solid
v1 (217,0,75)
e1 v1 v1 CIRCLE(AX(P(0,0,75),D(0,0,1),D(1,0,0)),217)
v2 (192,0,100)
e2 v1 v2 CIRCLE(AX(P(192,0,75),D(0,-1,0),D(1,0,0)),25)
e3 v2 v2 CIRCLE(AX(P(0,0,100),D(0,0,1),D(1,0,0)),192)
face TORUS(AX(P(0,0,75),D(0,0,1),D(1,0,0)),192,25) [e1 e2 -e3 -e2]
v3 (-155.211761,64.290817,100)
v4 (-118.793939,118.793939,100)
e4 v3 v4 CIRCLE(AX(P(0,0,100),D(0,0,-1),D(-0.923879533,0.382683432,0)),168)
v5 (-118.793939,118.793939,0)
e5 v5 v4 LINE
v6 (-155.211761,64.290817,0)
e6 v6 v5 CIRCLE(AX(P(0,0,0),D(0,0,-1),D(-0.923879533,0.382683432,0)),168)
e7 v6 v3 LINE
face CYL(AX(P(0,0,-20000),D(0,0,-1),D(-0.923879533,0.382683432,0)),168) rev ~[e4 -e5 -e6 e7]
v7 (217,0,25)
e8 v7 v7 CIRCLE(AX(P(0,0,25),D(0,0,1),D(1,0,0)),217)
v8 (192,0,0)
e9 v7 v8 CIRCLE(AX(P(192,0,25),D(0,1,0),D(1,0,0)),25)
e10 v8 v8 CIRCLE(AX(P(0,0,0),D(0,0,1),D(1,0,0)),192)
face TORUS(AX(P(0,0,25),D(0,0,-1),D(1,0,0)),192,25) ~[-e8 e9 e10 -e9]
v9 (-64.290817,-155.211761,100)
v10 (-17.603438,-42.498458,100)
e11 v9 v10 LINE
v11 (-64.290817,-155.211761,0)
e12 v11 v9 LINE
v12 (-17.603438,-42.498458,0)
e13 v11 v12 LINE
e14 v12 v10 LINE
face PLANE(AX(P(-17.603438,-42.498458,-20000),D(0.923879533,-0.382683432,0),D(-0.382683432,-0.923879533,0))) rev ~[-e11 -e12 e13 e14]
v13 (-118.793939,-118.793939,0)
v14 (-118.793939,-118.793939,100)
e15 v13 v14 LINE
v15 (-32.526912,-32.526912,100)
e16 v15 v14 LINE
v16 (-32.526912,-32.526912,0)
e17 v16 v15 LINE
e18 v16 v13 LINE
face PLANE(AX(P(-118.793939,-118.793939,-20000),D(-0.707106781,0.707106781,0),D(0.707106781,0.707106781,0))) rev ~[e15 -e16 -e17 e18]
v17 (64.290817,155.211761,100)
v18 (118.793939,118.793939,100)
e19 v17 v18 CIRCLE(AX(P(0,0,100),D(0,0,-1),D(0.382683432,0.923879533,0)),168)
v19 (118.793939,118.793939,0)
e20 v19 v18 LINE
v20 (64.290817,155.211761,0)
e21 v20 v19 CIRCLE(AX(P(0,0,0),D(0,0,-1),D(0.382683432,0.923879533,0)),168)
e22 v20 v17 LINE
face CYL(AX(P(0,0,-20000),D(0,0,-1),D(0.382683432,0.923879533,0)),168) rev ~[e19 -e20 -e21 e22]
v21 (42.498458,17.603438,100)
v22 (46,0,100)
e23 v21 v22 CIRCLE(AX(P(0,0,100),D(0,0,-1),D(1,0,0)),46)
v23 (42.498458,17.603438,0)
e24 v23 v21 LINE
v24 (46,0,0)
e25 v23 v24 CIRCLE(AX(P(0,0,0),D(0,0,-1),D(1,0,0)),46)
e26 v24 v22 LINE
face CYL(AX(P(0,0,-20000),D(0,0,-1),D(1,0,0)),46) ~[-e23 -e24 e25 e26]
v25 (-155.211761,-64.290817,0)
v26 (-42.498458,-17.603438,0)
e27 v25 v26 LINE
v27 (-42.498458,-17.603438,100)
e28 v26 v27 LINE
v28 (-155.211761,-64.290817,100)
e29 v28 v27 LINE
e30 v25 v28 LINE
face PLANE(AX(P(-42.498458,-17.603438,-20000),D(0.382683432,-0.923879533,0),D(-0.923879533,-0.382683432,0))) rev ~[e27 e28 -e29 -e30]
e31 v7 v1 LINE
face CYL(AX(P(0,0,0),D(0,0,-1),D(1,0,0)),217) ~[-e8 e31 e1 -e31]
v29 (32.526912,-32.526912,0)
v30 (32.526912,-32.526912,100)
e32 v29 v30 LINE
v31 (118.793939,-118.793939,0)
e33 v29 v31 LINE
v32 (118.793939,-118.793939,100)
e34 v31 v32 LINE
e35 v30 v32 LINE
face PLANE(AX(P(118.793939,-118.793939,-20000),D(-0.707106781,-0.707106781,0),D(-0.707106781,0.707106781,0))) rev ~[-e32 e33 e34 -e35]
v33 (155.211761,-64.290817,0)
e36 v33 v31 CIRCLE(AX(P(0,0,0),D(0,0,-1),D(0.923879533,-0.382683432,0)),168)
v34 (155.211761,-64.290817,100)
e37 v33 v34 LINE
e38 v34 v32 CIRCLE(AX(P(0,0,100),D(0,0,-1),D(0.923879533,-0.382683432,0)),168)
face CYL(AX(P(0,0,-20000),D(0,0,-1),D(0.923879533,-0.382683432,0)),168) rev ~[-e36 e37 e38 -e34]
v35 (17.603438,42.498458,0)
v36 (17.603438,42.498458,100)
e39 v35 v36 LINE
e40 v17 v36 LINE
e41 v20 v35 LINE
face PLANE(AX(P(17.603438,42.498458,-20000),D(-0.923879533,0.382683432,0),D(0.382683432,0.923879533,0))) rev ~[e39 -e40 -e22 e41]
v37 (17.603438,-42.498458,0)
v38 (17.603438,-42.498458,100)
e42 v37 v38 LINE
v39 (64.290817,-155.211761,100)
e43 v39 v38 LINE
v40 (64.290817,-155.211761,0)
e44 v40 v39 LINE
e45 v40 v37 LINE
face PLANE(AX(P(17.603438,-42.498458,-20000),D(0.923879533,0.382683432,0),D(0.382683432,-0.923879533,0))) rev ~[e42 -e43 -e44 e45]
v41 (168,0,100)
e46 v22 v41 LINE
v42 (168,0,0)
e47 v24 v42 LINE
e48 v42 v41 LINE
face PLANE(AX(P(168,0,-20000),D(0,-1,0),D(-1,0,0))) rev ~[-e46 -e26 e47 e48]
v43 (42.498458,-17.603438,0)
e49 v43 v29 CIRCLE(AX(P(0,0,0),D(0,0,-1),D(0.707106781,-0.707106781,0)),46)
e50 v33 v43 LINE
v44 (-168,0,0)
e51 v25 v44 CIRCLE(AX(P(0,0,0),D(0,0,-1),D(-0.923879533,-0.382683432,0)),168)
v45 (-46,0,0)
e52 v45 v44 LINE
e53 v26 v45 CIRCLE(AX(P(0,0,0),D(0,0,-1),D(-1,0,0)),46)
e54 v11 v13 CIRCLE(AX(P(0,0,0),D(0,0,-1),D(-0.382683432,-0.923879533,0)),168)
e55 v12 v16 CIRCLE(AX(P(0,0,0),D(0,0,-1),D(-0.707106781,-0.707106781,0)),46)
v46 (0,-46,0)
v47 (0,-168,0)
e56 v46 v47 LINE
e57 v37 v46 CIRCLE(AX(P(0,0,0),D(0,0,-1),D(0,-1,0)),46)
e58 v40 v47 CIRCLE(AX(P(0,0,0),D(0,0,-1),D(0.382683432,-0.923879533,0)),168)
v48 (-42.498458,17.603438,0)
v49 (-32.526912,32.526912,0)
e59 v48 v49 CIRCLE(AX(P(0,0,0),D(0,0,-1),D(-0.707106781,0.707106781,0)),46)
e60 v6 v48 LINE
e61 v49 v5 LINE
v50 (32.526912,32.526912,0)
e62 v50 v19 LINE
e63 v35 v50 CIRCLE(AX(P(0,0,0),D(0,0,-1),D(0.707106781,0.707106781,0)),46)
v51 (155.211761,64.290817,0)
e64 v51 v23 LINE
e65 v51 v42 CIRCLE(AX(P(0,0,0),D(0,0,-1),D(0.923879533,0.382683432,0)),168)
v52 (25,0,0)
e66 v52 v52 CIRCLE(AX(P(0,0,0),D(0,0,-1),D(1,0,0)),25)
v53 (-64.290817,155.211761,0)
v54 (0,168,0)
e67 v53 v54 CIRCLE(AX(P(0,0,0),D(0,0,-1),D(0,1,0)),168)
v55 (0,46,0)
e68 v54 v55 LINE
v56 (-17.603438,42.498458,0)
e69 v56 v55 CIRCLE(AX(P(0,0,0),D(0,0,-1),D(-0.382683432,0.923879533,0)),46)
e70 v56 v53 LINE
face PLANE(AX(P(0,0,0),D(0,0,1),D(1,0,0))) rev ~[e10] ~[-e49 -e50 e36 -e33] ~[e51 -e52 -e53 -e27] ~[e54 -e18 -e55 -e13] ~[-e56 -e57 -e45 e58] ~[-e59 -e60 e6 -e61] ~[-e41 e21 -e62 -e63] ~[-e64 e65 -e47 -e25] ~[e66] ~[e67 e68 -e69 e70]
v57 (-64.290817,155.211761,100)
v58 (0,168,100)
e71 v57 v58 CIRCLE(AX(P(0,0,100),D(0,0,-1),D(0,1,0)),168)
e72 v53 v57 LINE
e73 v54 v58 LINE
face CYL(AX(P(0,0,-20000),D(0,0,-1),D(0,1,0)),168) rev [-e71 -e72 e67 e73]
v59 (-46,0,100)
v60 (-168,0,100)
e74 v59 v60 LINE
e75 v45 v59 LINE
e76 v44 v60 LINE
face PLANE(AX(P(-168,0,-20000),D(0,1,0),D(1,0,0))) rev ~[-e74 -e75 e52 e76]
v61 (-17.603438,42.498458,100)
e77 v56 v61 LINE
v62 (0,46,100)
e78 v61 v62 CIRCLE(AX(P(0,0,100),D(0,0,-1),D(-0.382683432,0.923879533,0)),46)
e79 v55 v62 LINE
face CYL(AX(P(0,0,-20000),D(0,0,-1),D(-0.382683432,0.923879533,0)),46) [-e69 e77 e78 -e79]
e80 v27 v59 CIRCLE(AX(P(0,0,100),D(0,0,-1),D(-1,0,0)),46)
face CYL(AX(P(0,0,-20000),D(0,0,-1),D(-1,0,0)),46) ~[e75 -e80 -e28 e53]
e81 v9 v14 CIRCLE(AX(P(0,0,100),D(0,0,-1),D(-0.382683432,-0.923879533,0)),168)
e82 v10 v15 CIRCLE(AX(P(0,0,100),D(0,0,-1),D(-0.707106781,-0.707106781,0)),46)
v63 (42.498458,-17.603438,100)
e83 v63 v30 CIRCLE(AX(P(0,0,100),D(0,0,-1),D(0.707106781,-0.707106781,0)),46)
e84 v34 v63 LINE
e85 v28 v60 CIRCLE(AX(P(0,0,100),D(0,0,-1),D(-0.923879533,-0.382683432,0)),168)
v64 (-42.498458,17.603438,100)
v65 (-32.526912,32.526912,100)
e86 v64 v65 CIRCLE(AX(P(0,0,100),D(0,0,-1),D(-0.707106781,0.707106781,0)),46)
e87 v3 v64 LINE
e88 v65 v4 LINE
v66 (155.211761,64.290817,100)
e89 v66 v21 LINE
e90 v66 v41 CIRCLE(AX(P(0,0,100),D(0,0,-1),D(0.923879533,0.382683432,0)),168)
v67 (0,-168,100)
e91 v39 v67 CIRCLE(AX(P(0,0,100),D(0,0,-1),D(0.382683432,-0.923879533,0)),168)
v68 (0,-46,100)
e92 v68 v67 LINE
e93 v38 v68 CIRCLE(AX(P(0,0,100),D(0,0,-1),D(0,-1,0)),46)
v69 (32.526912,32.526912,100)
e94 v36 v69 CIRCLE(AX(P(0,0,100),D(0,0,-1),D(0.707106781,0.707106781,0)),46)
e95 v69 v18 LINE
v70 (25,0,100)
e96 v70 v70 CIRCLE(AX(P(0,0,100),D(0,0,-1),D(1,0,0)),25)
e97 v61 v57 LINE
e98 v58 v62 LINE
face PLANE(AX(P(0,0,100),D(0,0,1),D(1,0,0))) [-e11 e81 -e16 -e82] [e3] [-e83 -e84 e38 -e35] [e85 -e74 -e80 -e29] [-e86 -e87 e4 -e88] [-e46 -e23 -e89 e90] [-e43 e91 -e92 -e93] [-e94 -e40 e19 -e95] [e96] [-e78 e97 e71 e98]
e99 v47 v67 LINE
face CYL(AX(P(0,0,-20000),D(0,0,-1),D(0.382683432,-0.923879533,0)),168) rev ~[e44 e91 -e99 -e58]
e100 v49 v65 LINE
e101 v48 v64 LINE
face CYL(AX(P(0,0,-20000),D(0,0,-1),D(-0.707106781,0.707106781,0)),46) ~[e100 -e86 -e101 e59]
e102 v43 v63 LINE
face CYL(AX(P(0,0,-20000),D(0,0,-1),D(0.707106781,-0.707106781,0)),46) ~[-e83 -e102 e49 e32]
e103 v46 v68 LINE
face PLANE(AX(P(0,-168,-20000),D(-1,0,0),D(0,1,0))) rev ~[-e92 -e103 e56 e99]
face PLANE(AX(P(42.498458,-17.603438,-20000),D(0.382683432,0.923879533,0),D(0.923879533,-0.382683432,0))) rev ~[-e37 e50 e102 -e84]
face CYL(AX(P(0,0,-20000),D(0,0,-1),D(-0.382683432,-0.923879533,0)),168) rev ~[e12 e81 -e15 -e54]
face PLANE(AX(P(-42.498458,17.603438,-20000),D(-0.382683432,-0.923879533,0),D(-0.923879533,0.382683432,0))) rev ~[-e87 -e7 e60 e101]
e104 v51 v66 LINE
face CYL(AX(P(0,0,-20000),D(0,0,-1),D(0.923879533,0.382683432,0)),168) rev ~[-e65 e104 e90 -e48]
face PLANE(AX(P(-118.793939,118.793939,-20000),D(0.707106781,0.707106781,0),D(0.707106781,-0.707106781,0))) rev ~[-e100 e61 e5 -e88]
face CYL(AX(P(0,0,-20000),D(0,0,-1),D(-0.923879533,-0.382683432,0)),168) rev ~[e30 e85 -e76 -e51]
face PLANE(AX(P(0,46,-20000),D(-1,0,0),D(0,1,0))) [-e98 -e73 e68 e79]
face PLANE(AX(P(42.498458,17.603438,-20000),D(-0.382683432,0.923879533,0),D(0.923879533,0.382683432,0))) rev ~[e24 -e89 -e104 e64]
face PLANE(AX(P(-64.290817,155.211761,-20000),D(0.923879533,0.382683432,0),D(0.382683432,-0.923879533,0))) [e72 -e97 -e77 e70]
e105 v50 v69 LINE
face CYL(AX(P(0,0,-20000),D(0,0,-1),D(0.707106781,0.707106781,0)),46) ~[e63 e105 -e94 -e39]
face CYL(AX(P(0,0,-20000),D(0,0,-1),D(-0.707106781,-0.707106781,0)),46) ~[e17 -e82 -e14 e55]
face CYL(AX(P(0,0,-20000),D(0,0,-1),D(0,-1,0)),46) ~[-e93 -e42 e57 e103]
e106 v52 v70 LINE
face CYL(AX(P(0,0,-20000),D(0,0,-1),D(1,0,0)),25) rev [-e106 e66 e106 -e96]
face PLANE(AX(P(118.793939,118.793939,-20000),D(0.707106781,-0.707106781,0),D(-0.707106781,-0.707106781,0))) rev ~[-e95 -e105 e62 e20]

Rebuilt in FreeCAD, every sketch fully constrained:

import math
import FreeCAD as App
import Part
import Sketcher
from FreeCAD import Vector
Q = App.Units.Quantity


def edges_at(feature, points):
    """Names of the edges that pass closest to the given points."""
    edges = feature.Shape.Edges
    near = lambda p: min(range(len(edges)), key=lambda i: edges[i].distToShape(Part.Vertex(*p))[0])
    return sorted({f"Edge{near(p) + 1}" for p in points})

doc = App.newDocument("Part")
body = doc.addObject("PartDesign::Body", "Body")

# Sketch on XY plane
sketch1 = body.newObject("Sketcher::SketchObject", "Sketch")
sketch1.AttachmentSupport = (doc.getObject("XY_Plane"), [""])
sketch1.MapMode = "FlatFace"
sketch1.addGeometry(Part.Circle(Vector(0, 0, 0), Vector(0, 0, 1), 217), False)
sketch1.addConstraint(Sketcher.Constraint("Coincident", 0, 3, -1, 1))
sketch1.addConstraint(Sketcher.Constraint("Diameter", 0, 434.0))
pad1 = body.newObject("PartDesign::Pad", "Pad")
pad1.Profile = sketch1
pad1.Length = 100
doc.recompute()

fillet = body.newObject("PartDesign::Fillet", "Fillet")
fillet.Base = (pad1, edges_at(pad1, [(-217, 0, 100)]))
fillet.Radius = 25
doc.recompute()

fillet2 = body.newObject("PartDesign::Fillet", "Fillet001")
fillet2.Base = (fillet, edges_at(fillet, [(-217, 0, 0)]))
fillet2.Radius = 25

# Sketch on XY plane
sketch2 = body.newObject("Sketcher::SketchObject", "Sketch001")
sketch2.AttachmentSupport = (doc.getObject("XY_Plane"), [""])
sketch2.MapMode = "FlatFace"
sketch2.addGeometry(Part.ArcOfCircle(Part.Circle(Vector(0, 0, 0), Vector(0, 0, 1), 46), math.radians(180), math.radians(203)), False)
sketch2.addGeometry(Part.LineSegment(Vector(-46, 0, 0), Vector(-168, 0, 0)), False)
sketch2.addGeometry(Part.ArcOfCircle(Part.Circle(Vector(0, 0, 0), Vector(0, 0, 1), 168), math.radians(180), math.radians(203)), False)
sketch2.addGeometry(Part.LineSegment(Vector(-155, -64, 0), Vector(-42, -18, 0)), False)
sketch2.addGeometry(Part.ArcOfCircle(Part.Circle(Vector(0, 0, 0), Vector(0, 0, 1), 46), math.radians(-90), math.radians(-67)), False)
sketch2.addGeometry(Part.LineSegment(Vector(0, -46, 0), Vector(0, -168, 0)), False)
sketch2.addGeometry(Part.ArcOfCircle(Part.Circle(Vector(0, 0, 0), Vector(0, 0, 1), 168), math.radians(-90), math.radians(-67)), False)
sketch2.addGeometry(Part.LineSegment(Vector(64, -155, 0), Vector(18, -42, 0)), False)
sketch2.addGeometry(Part.ArcOfCircle(Part.Circle(Vector(0, 0, 0), Vector(0, 0, 1), 46), math.radians(-45), math.radians(-23)), False)
sketch2.addGeometry(Part.LineSegment(Vector(33, -33, 0), Vector(119, -119, 0)), False)
sketch2.addGeometry(Part.ArcOfCircle(Part.Circle(Vector(0, 0, 0), Vector(0, 0, 1), 168), math.radians(-45), math.radians(-22)), False)
sketch2.addGeometry(Part.LineSegment(Vector(155, -64, 0), Vector(42, -18, 0)), False)
sketch2.addGeometry(Part.ArcOfCircle(Part.Circle(Vector(0, 0, 0), Vector(0, 0, 1), 46), math.radians(0), math.radians(23)), False)
sketch2.addGeometry(Part.LineSegment(Vector(46, 0, 0), Vector(168, 0, 0)), False)
sketch2.addGeometry(Part.ArcOfCircle(Part.Circle(Vector(0, 0, 0), Vector(0, 0, 1), 168), math.radians(0), math.radians(23)), False)
sketch2.addGeometry(Part.LineSegment(Vector(155, 64, 0), Vector(42, 18, 0)), False)
sketch2.addGeometry(Part.ArcOfCircle(Part.Circle(Vector(0, 0, 0), Vector(0, 0, 1), 46), math.radians(45), math.radians(67)), False)
sketch2.addGeometry(Part.LineSegment(Vector(33, 33, 0), Vector(119, 119, 0)), False)
sketch2.addGeometry(Part.ArcOfCircle(Part.Circle(Vector(0, 0, 0), Vector(0, 0, 1), 168), math.radians(45), math.radians(68)), False)
sketch2.addGeometry(Part.LineSegment(Vector(64, 155, 0), Vector(18, 42, 0)), False)
sketch2.addGeometry(Part.LineSegment(Vector(0, 46, 0), Vector(0, 168, 0)), False)
sketch2.addGeometry(Part.ArcOfCircle(Part.Circle(Vector(0, 0, 0), Vector(0, 0, 1), 168), math.radians(90), math.radians(113)), False)
sketch2.addGeometry(Part.LineSegment(Vector(-64, 155, 0), Vector(-18, 42, 0)), False)
sketch2.addGeometry(Part.ArcOfCircle(Part.Circle(Vector(0, 0, 0), Vector(0, 0, 1), 46), math.radians(90), math.radians(113)), False)
sketch2.addGeometry(Part.LineSegment(Vector(-155, 64, 0), Vector(-42, 18, 0)), False)
sketch2.addGeometry(Part.ArcOfCircle(Part.Circle(Vector(0, 0, 0), Vector(0, 0, 1), 46), math.radians(135), math.radians(157)), False)
sketch2.addGeometry(Part.LineSegment(Vector(-33, 33, 0), Vector(-119, 119, 0)), False)
sketch2.addGeometry(Part.ArcOfCircle(Part.Circle(Vector(0, 0, 0), Vector(0, 0, 1), 168), math.radians(135), math.radians(158)), False)
sketch2.addGeometry(Part.LineSegment(Vector(-64, -155, 0), Vector(-18, -42, 0)), False)
sketch2.addGeometry(Part.ArcOfCircle(Part.Circle(Vector(0, 0, 0), Vector(0, 0, 1), 46), math.radians(-135), math.radians(-113)), False)
sketch2.addGeometry(Part.LineSegment(Vector(-33, -33, 0), Vector(-119, -119, 0)), False)
sketch2.addGeometry(Part.ArcOfCircle(Part.Circle(Vector(0, 0, 0), Vector(0, 0, 1), 168), math.radians(-135), math.radians(-112)), False)
sketch2.addConstraint(Sketcher.Constraint("Coincident", 0, 1, 1, 1))
sketch2.addConstraint(Sketcher.Constraint("Coincident", 1, 2, 2, 1))
sketch2.addConstraint(Sketcher.Constraint("Coincident", 2, 2, 3, 1))
sketch2.addConstraint(Sketcher.Constraint("Coincident", 3, 2, 0, 2))
sketch2.addConstraint(Sketcher.Constraint("Coincident", 4, 1, 5, 1))
sketch2.addConstraint(Sketcher.Constraint("Coincident", 5, 2, 6, 1))
sketch2.addConstraint(Sketcher.Constraint("Coincident", 6, 2, 7, 1))
sketch2.addConstraint(Sketcher.Constraint("Coincident", 7, 2, 4, 2))
sketch2.addConstraint(Sketcher.Constraint("Coincident", 8, 1, 9, 1))
sketch2.addConstraint(Sketcher.Constraint("Coincident", 9, 2, 10, 1))
sketch2.addConstraint(Sketcher.Constraint("Coincident", 10, 2, 11, 1))
sketch2.addConstraint(Sketcher.Constraint("Coincident", 11, 2, 8, 2))
sketch2.addConstraint(Sketcher.Constraint("Coincident", 12, 1, 13, 1))
sketch2.addConstraint(Sketcher.Constraint("Coincident", 13, 2, 14, 1))
sketch2.addConstraint(Sketcher.Constraint("Coincident", 14, 2, 15, 1))
sketch2.addConstraint(Sketcher.Constraint("Coincident", 15, 2, 12, 2))
sketch2.addConstraint(Sketcher.Constraint("Coincident", 16, 1, 17, 1))
sketch2.addConstraint(Sketcher.Constraint("Coincident", 17, 2, 18, 1))
sketch2.addConstraint(Sketcher.Constraint("Coincident", 18, 2, 19, 1))
sketch2.addConstraint(Sketcher.Constraint("Coincident", 19, 2, 16, 2))
sketch2.addConstraint(Sketcher.Constraint("Coincident", 20, 2, 21, 1))
sketch2.addConstraint(Sketcher.Constraint("Coincident", 21, 2, 22, 1))
sketch2.addConstraint(Sketcher.Constraint("Coincident", 22, 2, 23, 2))
sketch2.addConstraint(Sketcher.Constraint("Coincident", 23, 1, 20, 1))
sketch2.addConstraint(Sketcher.Constraint("Coincident", 24, 2, 25, 2))
sketch2.addConstraint(Sketcher.Constraint("Coincident", 25, 1, 26, 1))
sketch2.addConstraint(Sketcher.Constraint("Coincident", 26, 2, 27, 1))
sketch2.addConstraint(Sketcher.Constraint("Coincident", 27, 2, 24, 1))
sketch2.addConstraint(Sketcher.Constraint("Coincident", 28, 2, 29, 2))
sketch2.addConstraint(Sketcher.Constraint("Coincident", 29, 1, 30, 1))
sketch2.addConstraint(Sketcher.Constraint("Coincident", 30, 2, 31, 1))
sketch2.addConstraint(Sketcher.Constraint("Coincident", 31, 2, 28, 1))
sketch2.addConstraint(Sketcher.Constraint("Horizontal", 1))
sketch2.addConstraint(Sketcher.Constraint("Vertical", 5))
sketch2.addConstraint(Sketcher.Constraint("Horizontal", 13))
sketch2.addConstraint(Sketcher.Constraint("Vertical", 20))
sketch2.addConstraint(Sketcher.Constraint("Coincident", 0, 3, -1, 1))
sketch2.addConstraint(Sketcher.Constraint("Coincident", 2, 3, -1, 1))
sketch2.addConstraint(Sketcher.Constraint("Coincident", 4, 3, -1, 1))
sketch2.addConstraint(Sketcher.Constraint("Coincident", 6, 3, -1, 1))
sketch2.addConstraint(Sketcher.Constraint("Coincident", 8, 3, -1, 1))
sketch2.addConstraint(Sketcher.Constraint("Coincident", 10, 3, -1, 1))
sketch2.addConstraint(Sketcher.Constraint("Coincident", 12, 3, -1, 1))
sketch2.addConstraint(Sketcher.Constraint("Coincident", 14, 3, -1, 1))
sketch2.addConstraint(Sketcher.Constraint("Coincident", 16, 3, -1, 1))
sketch2.addConstraint(Sketcher.Constraint("Coincident", 18, 3, -1, 1))
sketch2.addConstraint(Sketcher.Constraint("Coincident", 21, 3, -1, 1))
sketch2.addConstraint(Sketcher.Constraint("Coincident", 23, 3, -1, 1))
sketch2.addConstraint(Sketcher.Constraint("Coincident", 25, 3, -1, 1))
sketch2.addConstraint(Sketcher.Constraint("Coincident", 27, 3, -1, 1))
sketch2.addConstraint(Sketcher.Constraint("Coincident", 29, 3, -1, 1))
sketch2.addConstraint(Sketcher.Constraint("Coincident", 31, 3, -1, 1))
sketch2.addConstraint(Sketcher.Constraint("Equal", 0, 4))
sketch2.addConstraint(Sketcher.Constraint("Equal", 2, 6))
sketch2.addConstraint(Sketcher.Constraint("Equal", 4, 8))
sketch2.addConstraint(Sketcher.Constraint("Equal", 6, 10))
sketch2.addConstraint(Sketcher.Constraint("Equal", 8, 12))
sketch2.addConstraint(Sketcher.Constraint("Equal", 10, 14))
sketch2.addConstraint(Sketcher.Constraint("Equal", 12, 16))
sketch2.addConstraint(Sketcher.Constraint("Equal", 14, 18))
sketch2.addConstraint(Sketcher.Constraint("Equal", 18, 21))
sketch2.addConstraint(Sketcher.Constraint("Equal", 16, 23))
sketch2.addConstraint(Sketcher.Constraint("Equal", 23, 25))
sketch2.addConstraint(Sketcher.Constraint("Equal", 21, 27))
sketch2.addConstraint(Sketcher.Constraint("Equal", 25, 29))
sketch2.addConstraint(Sketcher.Constraint("Equal", 27, 31))
sketch2.addConstraint(Sketcher.Constraint("PointOnObject", 0, 1, -1))
sketch2.addConstraint(Sketcher.Constraint("PointOnObject", 4, 1, -2))
sketch2.addConstraint(Sketcher.Constraint("PointOnObject", 12, 1, -1))
sketch2.addConstraint(Sketcher.Constraint("PointOnObject", 20, 2, -2))
sketch2.addConstraint(Sketcher.Constraint("Perpendicular", 3, 7))
sketch2.addConstraint(Sketcher.Constraint("Perpendicular", 7, 15))
sketch2.addConstraint(Sketcher.Constraint("Perpendicular", 9, 17))
sketch2.addConstraint(Sketcher.Constraint("Perpendicular", 11, 19))
sketch2.addConstraint(Sketcher.Constraint("Perpendicular", 15, 22))
sketch2.addConstraint(Sketcher.Constraint("Perpendicular", 19, 24))
sketch2.addConstraint(Sketcher.Constraint("Perpendicular", 17, 26))
sketch2.addConstraint(Sketcher.Constraint("Perpendicular", 24, 28))
sketch2.addConstraint(Sketcher.Constraint("Perpendicular", 26, 30))
sketch2.addConstraint(Sketcher.Constraint("Horizontal", 2, 2, 10, 2))
sketch2.addConstraint(Sketcher.Constraint("Horizontal", 3, 2, 11, 2))
sketch2.addConstraint(Sketcher.Constraint("Horizontal", 18, 2, 21, 2))
sketch2.addConstraint(Sketcher.Constraint("Horizontal", 15, 2, 24, 2))
sketch2.addConstraint(Sketcher.Constraint("Horizontal", 16, 1, 25, 1))
sketch2.addConstraint(Sketcher.Constraint("Horizontal", 17, 2, 26, 2))
sketch2.addConstraint(Sketcher.Constraint("Horizontal", 7, 2, 28, 2))
sketch2.addConstraint(Sketcher.Constraint("Horizontal", 8, 1, 29, 1))
sketch2.addConstraint(Sketcher.Constraint("Vertical", 10, 2, 14, 2))
sketch2.addConstraint(Sketcher.Constraint("Vertical", 8, 1, 16, 1))
sketch2.addConstraint(Sketcher.Constraint("Vertical", 6, 2, 18, 2))
sketch2.addConstraint(Sketcher.Constraint("Radius", 0, 46.0))
sketch2.addConstraint(Sketcher.Constraint("Radius", 2, 168.0))
sketch2.addConstraint(Sketcher.Constraint("Angle", 3, Q("22.5 deg")))
sketch2.addConstraint(Sketcher.Constraint("DistanceX", 7, 2, 9, 2, 101.190501))
sketch2.addConstraint(Sketcher.Constraint("DistanceY", 15, 2, 17, 2, 101.190501))
sketch2.addConstraint(Sketcher.Constraint("DistanceX", 3, 2, -1, 1, 42.498458))
pocket1 = body.newObject("PartDesign::Pocket", "Pocket")
pocket1.Profile = sketch2
pocket1.Type = "ThroughAll"
pocket1.Midplane = True

# Sketch on XY plane
sketch3 = body.newObject("Sketcher::SketchObject", "Sketch002")
sketch3.AttachmentSupport = (doc.getObject("XY_Plane"), [""])
sketch3.MapMode = "FlatFace"
sketch3.addGeometry(Part.Circle(Vector(0, 0, 0), Vector(0, 0, 1), 25), False)
sketch3.addConstraint(Sketcher.Constraint("Coincident", 0, 3, -1, 1))
sketch3.addConstraint(Sketcher.Constraint("Diameter", 0, 50.0))
pocket2 = body.newObject("PartDesign::Pocket", "Pocket001")
pocket2.Profile = sketch3
pocket2.Type = "ThroughAll"
pocket2.Midplane = True

doc.recompute()
